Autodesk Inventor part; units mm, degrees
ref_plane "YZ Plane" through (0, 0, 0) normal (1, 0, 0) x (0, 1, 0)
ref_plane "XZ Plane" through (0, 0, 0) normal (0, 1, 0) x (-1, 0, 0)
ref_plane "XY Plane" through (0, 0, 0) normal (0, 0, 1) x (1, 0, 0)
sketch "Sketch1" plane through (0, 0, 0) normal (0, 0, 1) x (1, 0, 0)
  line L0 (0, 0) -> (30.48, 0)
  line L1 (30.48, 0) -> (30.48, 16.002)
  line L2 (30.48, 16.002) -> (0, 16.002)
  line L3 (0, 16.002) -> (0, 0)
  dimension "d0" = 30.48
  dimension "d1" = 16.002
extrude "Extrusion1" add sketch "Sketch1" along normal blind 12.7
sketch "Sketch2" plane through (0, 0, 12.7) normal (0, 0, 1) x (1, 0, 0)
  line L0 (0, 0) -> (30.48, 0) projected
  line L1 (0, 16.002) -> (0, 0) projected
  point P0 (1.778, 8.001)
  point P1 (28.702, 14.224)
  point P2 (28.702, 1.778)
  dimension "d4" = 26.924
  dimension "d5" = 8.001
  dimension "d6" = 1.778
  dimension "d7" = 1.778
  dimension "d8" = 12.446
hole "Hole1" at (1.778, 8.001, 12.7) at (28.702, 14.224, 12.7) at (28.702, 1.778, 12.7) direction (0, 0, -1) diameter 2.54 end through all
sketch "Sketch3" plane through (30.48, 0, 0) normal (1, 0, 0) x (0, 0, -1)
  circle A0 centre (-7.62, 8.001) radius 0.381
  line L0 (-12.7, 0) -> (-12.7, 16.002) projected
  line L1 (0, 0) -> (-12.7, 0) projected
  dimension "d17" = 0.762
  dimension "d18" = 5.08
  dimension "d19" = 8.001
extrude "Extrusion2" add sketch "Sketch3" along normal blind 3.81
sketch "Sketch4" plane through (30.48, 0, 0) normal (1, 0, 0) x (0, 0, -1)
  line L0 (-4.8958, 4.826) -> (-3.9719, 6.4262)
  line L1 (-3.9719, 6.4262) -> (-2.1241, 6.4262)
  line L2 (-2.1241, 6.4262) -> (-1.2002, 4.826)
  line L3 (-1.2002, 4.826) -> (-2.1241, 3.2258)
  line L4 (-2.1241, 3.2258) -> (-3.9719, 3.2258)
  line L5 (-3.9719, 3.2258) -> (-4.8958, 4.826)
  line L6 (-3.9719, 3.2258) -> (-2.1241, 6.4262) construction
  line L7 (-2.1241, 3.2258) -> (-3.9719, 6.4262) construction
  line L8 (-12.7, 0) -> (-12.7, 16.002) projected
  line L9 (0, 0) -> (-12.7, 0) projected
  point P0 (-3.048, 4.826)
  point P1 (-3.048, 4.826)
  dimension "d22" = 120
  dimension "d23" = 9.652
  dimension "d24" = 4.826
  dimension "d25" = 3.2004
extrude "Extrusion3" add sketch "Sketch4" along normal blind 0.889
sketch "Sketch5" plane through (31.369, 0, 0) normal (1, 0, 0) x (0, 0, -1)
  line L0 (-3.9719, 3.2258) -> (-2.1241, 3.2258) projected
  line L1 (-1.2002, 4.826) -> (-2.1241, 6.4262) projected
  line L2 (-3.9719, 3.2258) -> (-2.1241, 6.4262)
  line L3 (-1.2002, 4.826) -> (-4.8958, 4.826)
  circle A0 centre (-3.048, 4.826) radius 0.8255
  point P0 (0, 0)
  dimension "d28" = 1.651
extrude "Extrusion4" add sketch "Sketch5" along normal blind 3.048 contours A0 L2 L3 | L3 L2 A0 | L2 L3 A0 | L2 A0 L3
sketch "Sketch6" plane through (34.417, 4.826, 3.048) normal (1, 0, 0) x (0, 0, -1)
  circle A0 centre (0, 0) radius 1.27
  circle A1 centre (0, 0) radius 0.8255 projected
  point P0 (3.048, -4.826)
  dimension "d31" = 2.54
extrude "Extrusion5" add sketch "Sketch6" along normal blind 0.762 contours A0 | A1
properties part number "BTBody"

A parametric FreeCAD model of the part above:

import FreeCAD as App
import Part
import Sketcher
from FreeCAD import Vector
Q = App.Units.Quantity

doc = App.newDocument("Part")
body = doc.addObject("PartDesign::Body", "Body")

# Sketch on XY plane
sketch1 = body.newObject("Sketcher::SketchObject", "Sketch")
sketch1.AttachmentSupport = (doc.getObject("XY_Plane"), [""])
sketch1.MapMode = "FlatFace"
sketch1.addGeometry(Part.LineSegment(Vector(0, 16, 0), Vector(0, 0, 0)), False)
sketch1.addGeometry(Part.LineSegment(Vector(0, 0, 0), Vector(30, 0, 0)), False)
sketch1.addGeometry(Part.LineSegment(Vector(30, 0, 0), Vector(30, 16, 0)), False)
sketch1.addGeometry(Part.LineSegment(Vector(30, 16, 0), Vector(0, 16, 0)), False)
sketch1.addConstraint(Sketcher.Constraint("Coincident", 0, 2, 1, 1))
sketch1.addConstraint(Sketcher.Constraint("Coincident", 1, 2, 2, 1))
sketch1.addConstraint(Sketcher.Constraint("Coincident", 2, 2, 3, 1))
sketch1.addConstraint(Sketcher.Constraint("Coincident", 3, 2, 0, 1))
sketch1.addConstraint(Sketcher.Constraint("Vertical", 0))
sketch1.addConstraint(Sketcher.Constraint("Horizontal", 1))
sketch1.addConstraint(Sketcher.Constraint("Vertical", 2))
sketch1.addConstraint(Sketcher.Constraint("Horizontal", 3))
sketch1.addConstraint(Sketcher.Constraint("Coincident", 0, 2, -1, 1))
sketch1.addConstraint(Sketcher.Constraint("DistanceX", 1, 1, 1, 2, Q("1.2 in")))
sketch1.addConstraint(Sketcher.Constraint("DistanceY", 0, 2, 0, 1, Q("0.63 in")))
pad1 = body.newObject("PartDesign::Pad", "Pad")
pad1.Profile = sketch1
pad1.Length = Q("0.5 in")

# Sketch on XY plane
sketch2 = body.newObject("Sketcher::SketchObject", "Sketch001")
sketch2.AttachmentSupport = (doc.getObject("XY_Plane"), [""])
sketch2.MapMode = "FlatFace"
sketch2.AttachmentOffset = App.Placement(Vector(0, 0, 0.5 * 25.4), App.Rotation())
sketch2.addGeometry(Part.Circle(Vector(1.8, 8, 0), Vector(0, 0, 1), 1.3), False)
sketch2.addGeometry(Part.Circle(Vector(28.7, 14.2, 0), Vector(0, 0, 1), 1.3), False)
sketch2.addGeometry(Part.Circle(Vector(28.7, 1.8, 0), Vector(0, 0, 1), 1.3), False)
sketch2.addConstraint(Sketcher.Constraint("Equal", 0, 1))
sketch2.addConstraint(Sketcher.Constraint("Equal", 1, 2))
sketch2.addConstraint(Sketcher.Constraint("Vertical", 1, 3, 2, 3))
sketch2.addConstraint(Sketcher.Constraint("Diameter", 0, Q("0.1 in")))
sketch2.addConstraint(Sketcher.Constraint("DistanceX", -1, 1, 0, 3, Q("0.07 in")))
sketch2.addConstraint(Sketcher.Constraint("DistanceX", -1, 1, 1, 3, Q("1.13 in")))
sketch2.addConstraint(Sketcher.Constraint("DistanceY", -1, 1, 1, 3, Q("0.56 in")))
sketch2.addConstraint(Sketcher.Constraint("DistanceY", -1, 1, 2, 3, Q("0.07 in")))
sketch2.addConstraint(Sketcher.Constraint("DistanceY", -1, 1, 0, 3, Q("0.315 in")))
doc.recompute()
hole = body.newObject("PartDesign::Hole", "Hole")
hole.Profile = sketch2
hole.ThreadType = "None"
hole.Diameter = Q("0.1 in")
hole.DepthType = "ThroughAll"

# Sketch on YZ plane
sketch3 = body.newObject("Sketcher::SketchObject", "Sketch002")
sketch3.AttachmentSupport = (doc.getObject("YZ_Plane"), [""])
sketch3.MapMode = "FlatFace"
sketch3.AttachmentOffset = App.Placement(Vector(0, 0, 1.2 * 25.4), App.Rotation())
sketch3.addGeometry(Part.Circle(Vector(8, 7.62, 0), Vector(0, 0, 1), 0.38), False)
sketch3.addConstraint(Sketcher.Constraint("Diameter", 0, Q("0.03 in")))
sketch3.addConstraint(Sketcher.Constraint("DistanceX", -1, 1, 0, 3, Q("0.315 in")))
sketch3.addConstraint(Sketcher.Constraint("DistanceY", -1, 1, 0, 3, Q("0.3 in")))
pad2 = body.newObject("PartDesign::Pad", "Pad001")
pad2.Profile = sketch3
pad2.Length = Q("0.15 in")

# Sketch on YZ plane
sketch4 = body.newObject("Sketcher::SketchObject", "Sketch003")
sketch4.AttachmentSupport = (doc.getObject("YZ_Plane"), [""])
sketch4.MapMode = "FlatFace"
sketch4.AttachmentOffset = App.Placement(Vector(0, 0, 1.2 * 25.4), App.Rotation())
sketch4.addGeometry(Part.LineSegment(Vector(6.4, 4, 0), Vector(4.8, 4.9, 0)), False)
sketch4.addGeometry(Part.LineSegment(Vector(4.8, 4.9, 0), Vector(3.2, 4, 0)), False)
sketch4.addGeometry(Part.LineSegment(Vector(3.2, 4, 0), Vector(3.2, 2.1, 0)), False)
sketch4.addGeometry(Part.LineSegment(Vector(3.2, 2.1, 0), Vector(4.8, 1.2, 0)), False)
sketch4.addGeometry(Part.LineSegment(Vector(4.8, 1.2, 0), Vector(6.4, 2.1, 0)), False)
sketch4.addGeometry(Part.LineSegment(Vector(6.4, 2.1, 0), Vector(6.4, 4, 0)), False)
sketch4.addConstraint(Sketcher.Constraint("Coincident", 0, 2, 1, 1))
sketch4.addConstraint(Sketcher.Constraint("Coincident", 1, 2, 2, 1))
sketch4.addConstraint(Sketcher.Constraint("Coincident", 2, 2, 3, 1))
sketch4.addConstraint(Sketcher.Constraint("Coincident", 3, 2, 4, 1))
sketch4.addConstraint(Sketcher.Constraint("Coincident", 4, 2, 5, 1))
sketch4.addConstraint(Sketcher.Constraint("Coincident", 5, 2, 0, 1))
sketch4.addConstraint(Sketcher.Constraint("Vertical", 2))
sketch4.addConstraint(Sketcher.Constraint("Vertical", 5))
sketch4.addConstraint(Sketcher.Constraint("Parallel", 0, 3))
sketch4.addConstraint(Sketcher.Constraint("Parallel", 1, 4))
sketch4.addConstraint(Sketcher.Constraint("Horizontal", 2, 2, 4, 2))
sketch4.addConstraint(Sketcher.Constraint("Horizontal", 1, 2, 5, 2))
sketch4.addConstraint(Sketcher.Constraint("Vertical", 0, 2, 3, 2))
sketch4.addConstraint(Sketcher.Constraint("DistanceX", -1, 1, 0, 2, Q("0.19 in")))
sketch4.addConstraint(Sketcher.Constraint("Angle", 0, Q("149.9994 deg")))
sketch4.addConstraint(Sketcher.Constraint("DistanceX", 2, 2, 4, 2, Q("0.126 in")))
sketch4.addConstraint(Sketcher.Constraint("DistanceY", 2, 2, 2, 1, 1.8478))
sketch4.addConstraint(Sketcher.Constraint("DistanceY", -1, 1, 0, 2, 4.8958))
pad3 = body.newObject("PartDesign::Pad", "Pad002")
pad3.Profile = sketch4
pad3.Length = Q("0.035 in")

# Sketch on YZ plane
sketch5 = body.newObject("Sketcher::SketchObject", "Sketch004")
sketch5.AttachmentSupport = (doc.getObject("YZ_Plane"), [""])
sketch5.MapMode = "FlatFace"
sketch5.AttachmentOffset = App.Placement(Vector(0, 0, 1.235 * 25.4), App.Rotation())
sketch5.addGeometry(Part.Circle(Vector(4.8, 3, 0), Vector(0, 0, 1), 0.8), False)
sketch5.addConstraint(Sketcher.Constraint("Diameter", 0, Q("0.065 in")))
sketch5.addConstraint(Sketcher.Constraint("DistanceX", -1, 1, 0, 3, Q("0.19 in")))
sketch5.addConstraint(Sketcher.Constraint("DistanceY", -1, 1, 0, 3, Q("0.12 in")))
pad4 = body.newObject("PartDesign::Pad", "Pad003")
pad4.Profile = sketch5
pad4.Length = Q("0.12 in")

# Sketch on YZ plane
sketch6 = body.newObject("Sketcher::SketchObject", "Sketch005")
sketch6.AttachmentSupport = (doc.getObject("YZ_Plane"), [""])
sketch6.MapMode = "FlatFace"
sketch6.AttachmentOffset = App.Placement(Vector(0, 0, 1.355 * 25.4), App.Rotation())
sketch6.addGeometry(Part.Circle(Vector(4.8, 3, 0), Vector(0, 0, 1), 1.3), False)
sketch6.addConstraint(Sketcher.Constraint("Diameter", 0, Q("0.1 in")))
sketch6.addConstraint(Sketcher.Constraint("DistanceX", -1, 1, 0, 3, Q("0.19 in")))
sketch6.addConstraint(Sketcher.Constraint("DistanceY", -1, 1, 0, 3, Q("0.12 in")))
pad5 = body.newObject("PartDesign::Pad", "Pad004")
pad5.Profile = sketch6
pad5.Length = Q("0.03 in")

doc.recompute()
